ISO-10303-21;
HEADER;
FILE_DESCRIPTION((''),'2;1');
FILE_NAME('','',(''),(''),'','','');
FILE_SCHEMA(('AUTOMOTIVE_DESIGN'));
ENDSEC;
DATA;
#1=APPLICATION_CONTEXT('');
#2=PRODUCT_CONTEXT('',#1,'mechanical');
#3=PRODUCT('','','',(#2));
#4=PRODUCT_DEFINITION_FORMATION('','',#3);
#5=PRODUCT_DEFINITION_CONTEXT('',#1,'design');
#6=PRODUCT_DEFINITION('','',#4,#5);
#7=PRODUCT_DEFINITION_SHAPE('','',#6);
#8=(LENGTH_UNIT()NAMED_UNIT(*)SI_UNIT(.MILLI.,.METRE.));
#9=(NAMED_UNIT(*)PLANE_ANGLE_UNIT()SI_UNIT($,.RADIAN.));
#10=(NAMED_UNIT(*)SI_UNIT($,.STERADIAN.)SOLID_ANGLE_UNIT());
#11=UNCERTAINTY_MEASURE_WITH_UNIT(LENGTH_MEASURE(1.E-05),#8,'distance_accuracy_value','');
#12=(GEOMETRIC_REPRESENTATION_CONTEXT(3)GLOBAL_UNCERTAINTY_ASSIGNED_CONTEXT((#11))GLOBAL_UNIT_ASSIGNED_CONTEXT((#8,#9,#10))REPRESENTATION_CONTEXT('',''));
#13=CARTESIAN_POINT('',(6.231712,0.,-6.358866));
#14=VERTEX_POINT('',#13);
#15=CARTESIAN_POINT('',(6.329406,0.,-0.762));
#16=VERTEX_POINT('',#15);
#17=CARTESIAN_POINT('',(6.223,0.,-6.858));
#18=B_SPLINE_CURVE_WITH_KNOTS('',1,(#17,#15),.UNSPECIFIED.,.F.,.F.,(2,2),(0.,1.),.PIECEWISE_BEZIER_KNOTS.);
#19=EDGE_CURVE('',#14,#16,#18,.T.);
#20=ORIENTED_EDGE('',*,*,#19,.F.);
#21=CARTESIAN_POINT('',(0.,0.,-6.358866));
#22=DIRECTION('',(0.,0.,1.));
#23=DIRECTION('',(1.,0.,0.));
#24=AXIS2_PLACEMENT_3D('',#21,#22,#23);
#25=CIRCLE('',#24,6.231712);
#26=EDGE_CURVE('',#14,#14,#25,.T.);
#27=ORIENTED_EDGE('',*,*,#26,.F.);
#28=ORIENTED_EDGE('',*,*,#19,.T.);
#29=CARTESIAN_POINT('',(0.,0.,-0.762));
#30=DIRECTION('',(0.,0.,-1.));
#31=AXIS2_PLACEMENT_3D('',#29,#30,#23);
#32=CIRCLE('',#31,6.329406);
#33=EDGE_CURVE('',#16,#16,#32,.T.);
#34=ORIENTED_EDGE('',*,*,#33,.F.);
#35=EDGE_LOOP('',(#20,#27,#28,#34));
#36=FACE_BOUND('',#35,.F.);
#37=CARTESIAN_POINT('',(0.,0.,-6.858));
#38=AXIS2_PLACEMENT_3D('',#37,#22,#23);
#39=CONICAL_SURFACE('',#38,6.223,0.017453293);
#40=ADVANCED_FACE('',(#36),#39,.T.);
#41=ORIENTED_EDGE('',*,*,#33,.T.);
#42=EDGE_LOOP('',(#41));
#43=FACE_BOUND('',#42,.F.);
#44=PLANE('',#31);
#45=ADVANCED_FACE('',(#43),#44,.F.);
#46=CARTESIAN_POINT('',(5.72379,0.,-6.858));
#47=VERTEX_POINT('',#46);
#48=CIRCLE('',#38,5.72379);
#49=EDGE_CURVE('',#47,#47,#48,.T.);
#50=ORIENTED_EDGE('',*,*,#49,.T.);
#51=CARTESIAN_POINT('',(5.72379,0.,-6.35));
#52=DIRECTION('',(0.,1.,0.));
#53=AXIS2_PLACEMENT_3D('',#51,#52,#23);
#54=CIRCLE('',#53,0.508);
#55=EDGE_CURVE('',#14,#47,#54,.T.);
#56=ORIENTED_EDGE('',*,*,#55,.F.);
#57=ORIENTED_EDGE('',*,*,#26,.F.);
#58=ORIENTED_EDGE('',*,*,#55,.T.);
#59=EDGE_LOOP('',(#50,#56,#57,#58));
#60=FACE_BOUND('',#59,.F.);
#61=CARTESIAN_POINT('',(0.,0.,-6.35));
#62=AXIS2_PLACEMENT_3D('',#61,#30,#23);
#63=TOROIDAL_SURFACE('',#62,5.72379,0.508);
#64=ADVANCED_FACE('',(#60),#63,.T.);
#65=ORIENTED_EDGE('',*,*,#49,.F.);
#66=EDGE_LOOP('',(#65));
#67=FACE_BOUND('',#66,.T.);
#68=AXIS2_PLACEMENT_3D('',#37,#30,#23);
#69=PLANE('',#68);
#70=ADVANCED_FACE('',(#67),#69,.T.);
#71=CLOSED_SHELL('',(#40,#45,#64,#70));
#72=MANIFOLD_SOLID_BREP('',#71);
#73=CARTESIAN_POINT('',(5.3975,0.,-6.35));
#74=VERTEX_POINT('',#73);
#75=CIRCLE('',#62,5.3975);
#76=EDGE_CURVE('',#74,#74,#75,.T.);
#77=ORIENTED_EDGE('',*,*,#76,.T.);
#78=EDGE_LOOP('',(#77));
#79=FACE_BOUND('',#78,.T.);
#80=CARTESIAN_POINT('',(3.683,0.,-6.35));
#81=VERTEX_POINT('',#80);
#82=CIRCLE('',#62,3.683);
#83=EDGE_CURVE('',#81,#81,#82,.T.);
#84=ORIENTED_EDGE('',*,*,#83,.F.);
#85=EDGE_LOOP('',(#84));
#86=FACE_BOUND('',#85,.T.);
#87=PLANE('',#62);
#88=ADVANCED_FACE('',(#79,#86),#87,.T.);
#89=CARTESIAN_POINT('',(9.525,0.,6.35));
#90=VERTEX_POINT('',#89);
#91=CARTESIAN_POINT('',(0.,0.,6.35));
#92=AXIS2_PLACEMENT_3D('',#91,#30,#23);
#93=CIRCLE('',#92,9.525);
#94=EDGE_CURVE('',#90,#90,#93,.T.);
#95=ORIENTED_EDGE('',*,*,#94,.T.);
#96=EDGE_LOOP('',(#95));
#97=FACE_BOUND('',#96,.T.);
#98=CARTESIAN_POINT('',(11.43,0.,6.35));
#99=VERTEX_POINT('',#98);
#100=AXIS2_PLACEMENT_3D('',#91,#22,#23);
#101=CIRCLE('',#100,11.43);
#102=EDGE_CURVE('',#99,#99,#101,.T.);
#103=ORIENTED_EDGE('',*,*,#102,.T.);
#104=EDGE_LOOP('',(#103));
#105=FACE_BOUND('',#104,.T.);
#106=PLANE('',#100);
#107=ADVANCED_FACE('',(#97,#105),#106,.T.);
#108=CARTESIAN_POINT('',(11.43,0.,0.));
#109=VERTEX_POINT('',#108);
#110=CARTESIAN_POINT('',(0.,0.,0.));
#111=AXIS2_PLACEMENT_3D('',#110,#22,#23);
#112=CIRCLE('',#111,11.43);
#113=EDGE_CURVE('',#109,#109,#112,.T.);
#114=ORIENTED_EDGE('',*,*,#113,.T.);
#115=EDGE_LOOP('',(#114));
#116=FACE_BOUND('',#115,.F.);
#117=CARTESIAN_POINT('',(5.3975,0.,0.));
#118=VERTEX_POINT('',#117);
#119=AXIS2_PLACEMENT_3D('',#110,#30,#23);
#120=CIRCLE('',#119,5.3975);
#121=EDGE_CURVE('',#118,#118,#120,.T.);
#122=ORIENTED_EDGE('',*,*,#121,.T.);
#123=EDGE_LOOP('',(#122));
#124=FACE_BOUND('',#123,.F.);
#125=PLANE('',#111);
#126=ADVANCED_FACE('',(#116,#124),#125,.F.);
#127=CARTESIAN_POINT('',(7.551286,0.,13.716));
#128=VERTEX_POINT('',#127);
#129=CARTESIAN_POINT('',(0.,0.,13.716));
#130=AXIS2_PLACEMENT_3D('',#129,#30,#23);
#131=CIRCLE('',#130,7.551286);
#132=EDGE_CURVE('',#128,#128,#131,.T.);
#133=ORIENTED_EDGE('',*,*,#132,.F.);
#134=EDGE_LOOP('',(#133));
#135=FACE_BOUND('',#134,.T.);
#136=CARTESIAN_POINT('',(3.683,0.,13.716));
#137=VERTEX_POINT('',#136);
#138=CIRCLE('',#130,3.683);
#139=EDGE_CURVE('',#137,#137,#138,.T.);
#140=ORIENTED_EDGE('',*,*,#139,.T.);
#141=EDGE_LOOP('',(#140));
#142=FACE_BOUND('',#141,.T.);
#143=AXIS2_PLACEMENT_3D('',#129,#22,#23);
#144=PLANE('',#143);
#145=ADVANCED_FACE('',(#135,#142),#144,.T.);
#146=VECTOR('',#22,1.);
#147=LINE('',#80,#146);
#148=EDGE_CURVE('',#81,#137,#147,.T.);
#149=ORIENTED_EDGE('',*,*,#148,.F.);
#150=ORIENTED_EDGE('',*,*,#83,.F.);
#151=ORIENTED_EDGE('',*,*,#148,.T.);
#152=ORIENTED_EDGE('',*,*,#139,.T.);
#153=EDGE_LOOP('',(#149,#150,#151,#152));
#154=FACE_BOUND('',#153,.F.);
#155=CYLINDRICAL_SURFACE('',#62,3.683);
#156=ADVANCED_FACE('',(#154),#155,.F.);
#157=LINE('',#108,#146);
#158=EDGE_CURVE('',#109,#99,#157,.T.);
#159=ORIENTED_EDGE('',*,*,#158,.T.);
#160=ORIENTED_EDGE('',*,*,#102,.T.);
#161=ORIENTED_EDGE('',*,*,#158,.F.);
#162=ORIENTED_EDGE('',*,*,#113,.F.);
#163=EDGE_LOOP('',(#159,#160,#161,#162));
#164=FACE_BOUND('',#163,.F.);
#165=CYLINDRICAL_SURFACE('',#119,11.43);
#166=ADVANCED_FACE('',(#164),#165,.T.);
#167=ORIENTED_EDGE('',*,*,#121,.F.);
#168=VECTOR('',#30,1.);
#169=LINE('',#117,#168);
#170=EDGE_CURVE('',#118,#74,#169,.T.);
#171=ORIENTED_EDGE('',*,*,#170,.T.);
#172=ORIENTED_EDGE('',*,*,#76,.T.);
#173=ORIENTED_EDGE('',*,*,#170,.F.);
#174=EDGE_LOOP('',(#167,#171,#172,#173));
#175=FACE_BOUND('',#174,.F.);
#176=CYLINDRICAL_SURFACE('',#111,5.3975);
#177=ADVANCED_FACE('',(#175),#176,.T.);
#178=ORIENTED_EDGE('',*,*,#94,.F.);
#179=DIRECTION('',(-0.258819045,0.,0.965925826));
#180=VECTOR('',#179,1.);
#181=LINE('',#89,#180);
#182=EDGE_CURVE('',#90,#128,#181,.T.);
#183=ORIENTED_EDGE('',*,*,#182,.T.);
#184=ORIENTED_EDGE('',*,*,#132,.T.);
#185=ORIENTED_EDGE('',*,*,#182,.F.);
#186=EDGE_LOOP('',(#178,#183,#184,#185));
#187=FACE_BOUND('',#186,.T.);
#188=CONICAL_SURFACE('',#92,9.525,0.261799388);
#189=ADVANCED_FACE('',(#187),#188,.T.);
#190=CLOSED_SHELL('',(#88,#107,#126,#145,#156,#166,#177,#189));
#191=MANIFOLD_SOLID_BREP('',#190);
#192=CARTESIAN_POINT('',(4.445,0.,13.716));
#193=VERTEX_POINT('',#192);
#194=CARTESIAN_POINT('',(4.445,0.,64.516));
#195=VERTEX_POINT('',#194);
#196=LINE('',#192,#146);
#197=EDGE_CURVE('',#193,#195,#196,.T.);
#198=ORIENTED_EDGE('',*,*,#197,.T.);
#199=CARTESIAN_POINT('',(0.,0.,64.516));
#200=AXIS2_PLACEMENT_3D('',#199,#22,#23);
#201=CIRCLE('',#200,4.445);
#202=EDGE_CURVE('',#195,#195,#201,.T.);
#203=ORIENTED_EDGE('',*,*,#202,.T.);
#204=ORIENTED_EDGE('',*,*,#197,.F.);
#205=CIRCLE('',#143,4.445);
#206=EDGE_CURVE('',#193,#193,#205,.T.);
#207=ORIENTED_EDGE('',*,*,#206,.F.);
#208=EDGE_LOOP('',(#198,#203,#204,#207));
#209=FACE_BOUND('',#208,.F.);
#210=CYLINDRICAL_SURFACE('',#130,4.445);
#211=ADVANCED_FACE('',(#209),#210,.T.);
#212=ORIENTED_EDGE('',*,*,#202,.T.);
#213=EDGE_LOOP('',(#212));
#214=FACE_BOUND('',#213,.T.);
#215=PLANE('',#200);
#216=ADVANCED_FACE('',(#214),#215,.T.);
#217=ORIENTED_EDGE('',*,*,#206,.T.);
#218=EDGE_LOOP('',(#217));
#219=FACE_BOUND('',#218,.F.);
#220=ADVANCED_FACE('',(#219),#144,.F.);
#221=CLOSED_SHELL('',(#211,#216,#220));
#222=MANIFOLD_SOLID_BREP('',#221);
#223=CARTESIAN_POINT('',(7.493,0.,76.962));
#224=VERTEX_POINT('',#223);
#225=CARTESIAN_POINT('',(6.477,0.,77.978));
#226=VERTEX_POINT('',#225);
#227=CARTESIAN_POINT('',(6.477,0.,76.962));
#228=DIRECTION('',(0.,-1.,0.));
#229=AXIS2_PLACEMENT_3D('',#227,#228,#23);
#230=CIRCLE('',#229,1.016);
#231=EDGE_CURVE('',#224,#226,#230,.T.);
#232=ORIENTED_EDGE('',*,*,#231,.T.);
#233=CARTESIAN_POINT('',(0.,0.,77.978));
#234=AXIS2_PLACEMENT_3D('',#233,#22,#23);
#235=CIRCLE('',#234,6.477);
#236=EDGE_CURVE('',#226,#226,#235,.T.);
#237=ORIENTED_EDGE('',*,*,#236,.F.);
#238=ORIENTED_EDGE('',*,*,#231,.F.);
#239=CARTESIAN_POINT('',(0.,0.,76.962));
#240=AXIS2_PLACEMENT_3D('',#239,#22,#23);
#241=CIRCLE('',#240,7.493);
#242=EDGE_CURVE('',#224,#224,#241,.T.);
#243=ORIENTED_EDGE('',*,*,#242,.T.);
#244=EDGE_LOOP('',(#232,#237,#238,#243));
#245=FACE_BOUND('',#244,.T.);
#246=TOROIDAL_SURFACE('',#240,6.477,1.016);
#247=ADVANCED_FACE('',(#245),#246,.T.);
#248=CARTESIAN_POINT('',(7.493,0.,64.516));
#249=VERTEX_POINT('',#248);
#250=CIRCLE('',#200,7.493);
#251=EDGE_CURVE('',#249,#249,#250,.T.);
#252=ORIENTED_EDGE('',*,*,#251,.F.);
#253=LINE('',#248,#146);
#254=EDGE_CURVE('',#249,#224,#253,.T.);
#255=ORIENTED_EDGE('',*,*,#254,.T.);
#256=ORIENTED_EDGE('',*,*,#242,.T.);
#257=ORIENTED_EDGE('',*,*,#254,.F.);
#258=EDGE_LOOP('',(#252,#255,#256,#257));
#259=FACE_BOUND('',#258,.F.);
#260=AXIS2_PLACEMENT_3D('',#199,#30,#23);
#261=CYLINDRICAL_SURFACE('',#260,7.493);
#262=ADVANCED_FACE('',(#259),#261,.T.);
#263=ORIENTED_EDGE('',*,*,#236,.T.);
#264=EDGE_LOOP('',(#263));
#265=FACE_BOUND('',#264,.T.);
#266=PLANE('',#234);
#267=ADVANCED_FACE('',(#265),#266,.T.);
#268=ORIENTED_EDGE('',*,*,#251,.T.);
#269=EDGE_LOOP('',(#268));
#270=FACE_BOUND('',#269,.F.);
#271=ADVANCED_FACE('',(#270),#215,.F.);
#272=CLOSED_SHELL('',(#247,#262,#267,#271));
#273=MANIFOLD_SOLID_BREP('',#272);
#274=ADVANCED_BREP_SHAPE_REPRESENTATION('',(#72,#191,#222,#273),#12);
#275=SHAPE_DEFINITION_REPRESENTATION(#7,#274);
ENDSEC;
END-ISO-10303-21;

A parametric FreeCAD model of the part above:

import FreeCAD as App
import Part
import Sketcher
Q = App.Units.Quantity


def edges_at(feature, points):
    """Names of the edges that pass closest to the given points."""
    edges = feature.Shape.Edges
    near = lambda p: min(range(len(edges)), key=lambda i: edges[i].distToShape(Part.Vertex(*p))[0])
    return sorted({f"Edge{near(p) + 1}" for p in points})

doc = App.newDocument("Part")
body = doc.addObject("PartDesign::Body", "Body")

# Sketch on XY plane
sketch1 = body.newObject("Sketcher::SketchObject", "Sketch")
sketch1.AttachmentSupport = (doc.getObject("XY_Plane"), [""])
sketch1.MapMode = "FlatFace"
sketch1.addGeometry(Part.Circle(App.Vector(0, 0, 0), App.Vector(0, 0, 1), 11.43), False)
sketch1.addConstraint([
    Sketcher.Constraint("Coincident", 0, 3, -1, 1),
    Sketcher.Constraint("Diameter", 0, Q("0.9 in")),
])
pad1 = body.newObject("PartDesign::Pad", "Pad")
pad1.Profile = sketch1
pad1.Length = Q("0.25 in")

# Sketch on XY plane
sketch2 = body.newObject("Sketcher::SketchObject", "Sketch001")
sketch2.AttachmentSupport = (doc.getObject("XY_Plane"), [""])
sketch2.MapMode = "FlatFace"
sketch2.AttachmentOffset = App.Placement(App.Vector(0, 0, 0.25 * 25.4), App.Rotation())
sketch2.addGeometry(Part.Circle(App.Vector(0, 0, 0), App.Vector(0, 0, 1), 9.525), False)
sketch2.addConstraint([
    Sketcher.Constraint("Coincident", 0, 3, -1, 1),
    Sketcher.Constraint("Diameter", 0, Q("0.75 in")),
])
pad2 = body.newObject("PartDesign::Pad", "Pad001")
pad2.Profile = sketch2
pad2.Length = Q("0.29 in")
pad2.TaperAngle = -15

# Sketch on XY plane
sketch3 = body.newObject("Sketcher::SketchObject", "Sketch002")
sketch3.AttachmentSupport = (doc.getObject("XY_Plane"), [""])
sketch3.MapMode = "FlatFace"
sketch3.addGeometry(Part.Circle(App.Vector(0, 0, 0), App.Vector(0, 0, 1), 5.3975), False)
sketch3.addConstraint([
    Sketcher.Constraint("Coincident", 0, 3, -1, 1),
    Sketcher.Constraint("Diameter", 0, Q("0.425 in")),
])
pad3 = body.newObject("PartDesign::Pad", "Pad002")
pad3.Profile = sketch3
pad3.Length = Q("0.25 in")
pad3.Reversed = True

# Sketch on XY plane
sketch4 = body.newObject("Sketcher::SketchObject", "Sketch003")
sketch4.AttachmentSupport = (doc.getObject("XY_Plane"), [""])
sketch4.MapMode = "FlatFace"
sketch4.AttachmentOffset = App.Placement(App.Vector(0, 0, -0.25 * 25.4), App.Rotation())
sketch4.addGeometry(Part.Circle(App.Vector(0, 0, 0), App.Vector(0, 0, 1), 3.683), False)
sketch4.addConstraint([
    Sketcher.Constraint("Coincident", 0, 3, -1, 1),
    Sketcher.Constraint("Diameter", 0, Q("0.29 in")),
])
pocket1 = body.newObject("PartDesign::Pocket", "Pocket")
pocket1.Profile = sketch4
pocket1.Type = "ThroughAll"
pocket1.Reversed = True
body2 = doc.addObject("PartDesign::Body", "Body001")

# Sketch on XY plane
sketch5 = body2.newObject("Sketcher::SketchObject", "Sketch004")
sketch5.AttachmentSupport = (doc.getObject("XY_Plane001"), [""])
sketch5.MapMode = "FlatFace"
sketch5.AttachmentOffset = App.Placement(App.Vector(0, 0, 0.54 * 25.4), App.Rotation())
sketch5.addGeometry(Part.Circle(App.Vector(0, 0, 0), App.Vector(0, 0, 1), 4.445), False)
sketch5.addConstraint([
    Sketcher.Constraint("Coincident", 0, 3, -1, 1),
    Sketcher.Constraint("Diameter", 0, Q("0.35 in")),
])
pad4 = body2.newObject("PartDesign::Pad", "Pad003")
pad4.Profile = sketch5
pad4.Length = Q("2 in")
body3 = doc.addObject("PartDesign::Body", "Body002")

# Sketch on XY plane
sketch6 = body3.newObject("Sketcher::SketchObject", "Sketch005")
sketch6.AttachmentSupport = (doc.getObject("XY_Plane002"), [""])
sketch6.MapMode = "FlatFace"
sketch6.AttachmentOffset = App.Placement(App.Vector(0, 0, 2.54 * 25.4), App.Rotation())
sketch6.addGeometry(Part.Circle(App.Vector(0, 0, 0), App.Vector(0, 0, 1), 7.493), False)
sketch6.addConstraint([
    Sketcher.Constraint("Coincident", 0, 3, -1, 1),
    Sketcher.Constraint("Diameter", 0, Q("0.59 in")),
])
pad5 = body3.newObject("PartDesign::Pad", "Pad004")
pad5.Profile = sketch6
pad5.Length = Q("0.53 in")
doc.recompute()

fillet = body3.newObject("PartDesign::Fillet", "Fillet")
fillet.Base = (pad5, edges_at(pad5, [(-7.493, 0, 77.978)]))
fillet.Radius = Q("0.04 in")
body4 = doc.addObject("PartDesign::Body", "Body003")

# Sketch on XY plane
sketch7 = body4.newObject("Sketcher::SketchObject", "Sketch006")
sketch7.AttachmentSupport = (doc.getObject("XY_Plane003"), [""])
sketch7.MapMode = "FlatFace"
sketch7.AttachmentOffset = App.Placement(App.Vector(0, 0, -0.27 * 25.4), App.Rotation())
sketch7.addGeometry(Part.Circle(App.Vector(0, 0, 0), App.Vector(0, 0, 1), 6.223), False)
sketch7.addConstraint([
    Sketcher.Constraint("Coincident", 0, 3, -1, 1),
    Sketcher.Constraint("Diameter", 0, Q("0.49 in")),
])
pad6 = body4.newObject("PartDesign::Pad", "Pad005")
pad6.Profile = sketch7
pad6.Length = Q("0.24 in")
pad6.TaperAngle = 1
doc.recompute()

fillet2 = body4.newObject("PartDesign::Fillet", "Fillet001")
fillet2.Base = (pad6, edges_at(pad6, [(-6.223, 0, -6.858)]))
fillet2.Radius = Q("0.02 in")

doc.recompute()
